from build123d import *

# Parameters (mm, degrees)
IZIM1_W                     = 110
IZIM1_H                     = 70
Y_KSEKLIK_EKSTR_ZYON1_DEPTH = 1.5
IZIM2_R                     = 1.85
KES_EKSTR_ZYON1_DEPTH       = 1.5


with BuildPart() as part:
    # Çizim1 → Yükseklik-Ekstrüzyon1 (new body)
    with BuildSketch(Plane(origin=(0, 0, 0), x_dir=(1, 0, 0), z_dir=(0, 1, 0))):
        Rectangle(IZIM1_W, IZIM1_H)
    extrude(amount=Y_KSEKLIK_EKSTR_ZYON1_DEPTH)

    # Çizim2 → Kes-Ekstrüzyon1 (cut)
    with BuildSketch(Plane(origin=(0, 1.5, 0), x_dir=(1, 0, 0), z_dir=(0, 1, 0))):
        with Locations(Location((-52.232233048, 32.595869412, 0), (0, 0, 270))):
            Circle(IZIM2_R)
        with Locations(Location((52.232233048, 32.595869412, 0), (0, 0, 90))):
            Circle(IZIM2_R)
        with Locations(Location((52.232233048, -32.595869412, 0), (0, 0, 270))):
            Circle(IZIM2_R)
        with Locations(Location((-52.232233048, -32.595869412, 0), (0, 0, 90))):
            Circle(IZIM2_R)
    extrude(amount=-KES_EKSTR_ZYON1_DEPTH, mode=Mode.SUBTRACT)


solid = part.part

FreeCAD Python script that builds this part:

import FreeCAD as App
import Part
import Sketcher
Q = App.Units.Quantity


def add_polygon(sketch, points):
    """Adds a closed chain of lines whose ends are joined by coincident constraints."""
    first, n = sketch.GeometryCount, len(points)
    for a, b in zip(points, points[1:] + points[:1]):
        sketch.addGeometry(Part.LineSegment(App.Vector(*a, 0), App.Vector(*b, 0)), False)
    for i in range(n):
        sketch.addConstraint(Sketcher.Constraint("Coincident", first + i, 2, first + (i + 1) % n, 1))

doc = App.newDocument("Part")
body = doc.addObject("PartDesign::Body", "Body")

# Sketch on XZ plane
sketch1 = doc.addObject("Sketcher::SketchObject", "Sketch")
body.addObject(sketch1)
sketch1.AttachmentSupport = (doc.XZ_Plane, [""])
sketch1.MapMode = "FlatFace"
add_polygon(sketch1, [(-55, -35), (-55, 35), (55, 35), (55, -35)])  # lines 0-3
sketch1.addConstraint([
    Sketcher.Constraint("Vertical", 0),
    Sketcher.Constraint("Horizontal", 1),
    Sketcher.Constraint("Vertical", 2),
    Sketcher.Constraint("Horizontal", 3),
    Sketcher.Constraint("Symmetric", 0, 2, 2, 2, -1, 1),
    Sketcher.Constraint("DistanceX", 1, 1, 1, 2, Q("110 mm")),
    Sketcher.Constraint("DistanceY", 0, 1, 0, 2, Q("70 mm")),
])
pad1 = doc.addObject("PartDesign::Pad", "Pad")
body.addObject(pad1)
pad1.Profile = sketch1
pad1.Length = 1.5
pad1.Reversed = True

# Sketch on XZ plane
sketch2 = doc.addObject("Sketcher::SketchObject", "Sketch001")
body.addObject(sketch2)
sketch2.AttachmentSupport = (doc.XZ_Plane, [""])
sketch2.MapMode = "FlatFace"
sketch2.AttachmentOffset = App.Placement(App.Vector(0, 0, -1.5), App.Rotation())
sketch2.addGeometry([
    Part.Circle(App.Vector(-52.2, -32.6, 0), App.Vector(0, 0, 1), 1.9),
    Part.Circle(App.Vector(52.2, -32.6, 0), App.Vector(0, 0, 1), 1.9),
    Part.Circle(App.Vector(52.2, 32.6, 0), App.Vector(0, 0, 1), 1.9),
    Part.Circle(App.Vector(-52.2, 32.6, 0), App.Vector(0, 0, 1), 1.9),
], False)
sketch2.addConstraint([
    Sketcher.Constraint("Equal", 0, 1),
    Sketcher.Constraint("Equal", 1, 2),
    Sketcher.Constraint("Equal", 2, 3),
    Sketcher.Constraint("Symmetric", 0, 3, 2, 3, -1, 1),
    Sketcher.Constraint("Symmetric", 1, 3, 3, 3, -1, 1),
    Sketcher.Constraint("Symmetric", 0, 3, 1, 3, -2),
    Sketcher.Constraint("Diameter", 0, Q("3.7 mm")),
    Sketcher.Constraint("DistanceY", 0, 3, -1, 1, Q("32.595869 mm")),
    Sketcher.Constraint("DistanceX", 0, 3, -1, 1, Q("52.232233 mm")),
])
pocket1 = doc.addObject("PartDesign::Pocket", "Pocket")
body.addObject(pocket1)
pocket1.Profile = sketch2
pocket1.Length = 1.5
pocket1.Reversed = True

doc.recompute()
